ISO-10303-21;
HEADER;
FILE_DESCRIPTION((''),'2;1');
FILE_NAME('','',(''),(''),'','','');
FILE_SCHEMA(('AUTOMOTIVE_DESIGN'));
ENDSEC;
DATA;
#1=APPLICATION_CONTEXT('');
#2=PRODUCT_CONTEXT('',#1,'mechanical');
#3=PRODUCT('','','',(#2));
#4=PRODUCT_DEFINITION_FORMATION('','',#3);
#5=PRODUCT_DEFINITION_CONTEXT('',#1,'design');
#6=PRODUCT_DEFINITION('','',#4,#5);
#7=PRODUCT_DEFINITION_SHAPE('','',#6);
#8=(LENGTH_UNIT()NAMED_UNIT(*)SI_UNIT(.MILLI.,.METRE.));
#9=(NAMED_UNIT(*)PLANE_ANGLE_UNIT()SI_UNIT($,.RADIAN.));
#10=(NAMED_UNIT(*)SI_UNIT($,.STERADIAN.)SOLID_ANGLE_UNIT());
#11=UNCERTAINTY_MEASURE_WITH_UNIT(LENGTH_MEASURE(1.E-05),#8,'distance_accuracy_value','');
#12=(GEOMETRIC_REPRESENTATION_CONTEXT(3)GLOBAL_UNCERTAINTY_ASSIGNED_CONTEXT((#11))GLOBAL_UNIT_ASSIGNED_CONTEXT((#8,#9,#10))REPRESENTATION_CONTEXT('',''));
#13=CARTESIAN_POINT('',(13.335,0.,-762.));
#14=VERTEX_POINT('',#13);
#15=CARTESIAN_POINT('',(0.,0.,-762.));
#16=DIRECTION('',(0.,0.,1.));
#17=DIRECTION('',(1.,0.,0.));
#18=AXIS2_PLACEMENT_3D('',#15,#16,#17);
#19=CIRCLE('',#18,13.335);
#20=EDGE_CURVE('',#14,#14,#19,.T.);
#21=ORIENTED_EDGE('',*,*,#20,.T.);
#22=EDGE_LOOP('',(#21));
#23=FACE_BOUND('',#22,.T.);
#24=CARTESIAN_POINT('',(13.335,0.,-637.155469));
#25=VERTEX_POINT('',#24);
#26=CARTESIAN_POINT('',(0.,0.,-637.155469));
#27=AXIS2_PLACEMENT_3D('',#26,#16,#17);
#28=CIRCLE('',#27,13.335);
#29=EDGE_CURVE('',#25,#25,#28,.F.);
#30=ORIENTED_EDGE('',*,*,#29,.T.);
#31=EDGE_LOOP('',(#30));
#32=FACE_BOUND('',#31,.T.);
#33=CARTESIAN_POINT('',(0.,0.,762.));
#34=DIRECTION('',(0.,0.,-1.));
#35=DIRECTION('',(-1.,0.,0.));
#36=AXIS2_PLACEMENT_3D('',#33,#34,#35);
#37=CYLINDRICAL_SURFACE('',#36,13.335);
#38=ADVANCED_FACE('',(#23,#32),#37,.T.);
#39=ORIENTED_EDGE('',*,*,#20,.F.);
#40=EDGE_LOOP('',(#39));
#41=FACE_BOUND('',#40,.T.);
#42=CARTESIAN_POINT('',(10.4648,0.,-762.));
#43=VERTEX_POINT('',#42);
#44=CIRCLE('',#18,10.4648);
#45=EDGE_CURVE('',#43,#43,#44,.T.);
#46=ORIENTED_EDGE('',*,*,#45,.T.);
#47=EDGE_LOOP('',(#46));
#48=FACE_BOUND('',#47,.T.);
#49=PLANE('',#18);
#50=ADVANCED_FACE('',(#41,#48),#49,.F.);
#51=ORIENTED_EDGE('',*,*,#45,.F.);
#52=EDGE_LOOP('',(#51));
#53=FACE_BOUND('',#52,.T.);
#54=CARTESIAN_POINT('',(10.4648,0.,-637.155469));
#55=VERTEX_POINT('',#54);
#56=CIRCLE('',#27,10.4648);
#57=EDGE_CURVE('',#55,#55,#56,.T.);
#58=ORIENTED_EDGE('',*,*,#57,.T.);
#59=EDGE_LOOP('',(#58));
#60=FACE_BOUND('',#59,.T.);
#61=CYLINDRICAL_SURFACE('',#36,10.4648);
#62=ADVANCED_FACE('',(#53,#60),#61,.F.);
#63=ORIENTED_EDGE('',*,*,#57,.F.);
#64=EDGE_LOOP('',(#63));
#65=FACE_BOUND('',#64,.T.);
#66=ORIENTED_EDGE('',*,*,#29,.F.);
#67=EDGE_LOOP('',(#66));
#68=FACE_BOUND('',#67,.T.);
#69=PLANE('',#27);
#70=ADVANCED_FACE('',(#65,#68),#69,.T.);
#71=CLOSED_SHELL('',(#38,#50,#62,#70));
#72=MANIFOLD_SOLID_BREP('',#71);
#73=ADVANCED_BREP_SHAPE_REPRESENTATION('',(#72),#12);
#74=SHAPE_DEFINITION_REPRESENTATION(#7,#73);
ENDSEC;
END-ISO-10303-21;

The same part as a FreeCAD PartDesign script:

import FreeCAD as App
import Part
import Sketcher
Q = App.Units.Quantity

doc = App.newDocument("Part")
body = doc.addObject("PartDesign::Body", "Body")

sketch1 = body.newObject("Sketcher::SketchObject", "Sketch")
sketch1.AttachmentSupport = (doc.getObject("XY_Plane"), [""])
sketch1.MapMode = "FlatFace"
sketch1.addGeometry([
    Part.Circle(App.Vector(0, 0, 0), App.Vector(0, 0, 1), 13),
    Part.Circle(App.Vector(0, 0, 0), App.Vector(0, 0, 1), 10),
], False)
sketch1.addConstraint([
    Sketcher.Constraint("Coincident", 0, 3, -1, 1),
    Sketcher.Constraint("Coincident", 1, 3, -1, 1),
    Sketcher.Constraint("Diameter", 0, Q("1.05 in")),
    Sketcher.Constraint("Diameter", 1, Q("0.824 in")),
])
pad1 = body.newObject("PartDesign::Pad", "Pad")
pad1.Profile = sketch1
pad1.Type = "TwoLengths"
pad1.Length = Q("30 in")
pad1.Length2 = Q("30 in")

sketch2 = body.newObject("Sketcher::SketchObject", "Sketch001")
sketch2.AttachmentSupport = (doc.getObject("XY_Plane"), [""])
sketch2.MapMode = "FlatFace"
sketch2.AttachmentOffset = App.Placement(App.Vector(0, 0, 30 * 25.4), App.Rotation())
sketch2.addGeometry(Part.Circle(App.Vector(0, 0, 0), App.Vector(0, 0, 1), 13), False)
sketch2.addConstraint([
    Sketcher.Constraint("Coincident", 0, 3, -1, 1),
    Sketcher.Constraint("Diameter", 0, Q("1.05 in")),
])
pocket1 = body.newObject("PartDesign::Pocket", "Pocket")
pocket1.Profile = sketch2
pocket1.Length = 1399.155469

doc.recompute()
